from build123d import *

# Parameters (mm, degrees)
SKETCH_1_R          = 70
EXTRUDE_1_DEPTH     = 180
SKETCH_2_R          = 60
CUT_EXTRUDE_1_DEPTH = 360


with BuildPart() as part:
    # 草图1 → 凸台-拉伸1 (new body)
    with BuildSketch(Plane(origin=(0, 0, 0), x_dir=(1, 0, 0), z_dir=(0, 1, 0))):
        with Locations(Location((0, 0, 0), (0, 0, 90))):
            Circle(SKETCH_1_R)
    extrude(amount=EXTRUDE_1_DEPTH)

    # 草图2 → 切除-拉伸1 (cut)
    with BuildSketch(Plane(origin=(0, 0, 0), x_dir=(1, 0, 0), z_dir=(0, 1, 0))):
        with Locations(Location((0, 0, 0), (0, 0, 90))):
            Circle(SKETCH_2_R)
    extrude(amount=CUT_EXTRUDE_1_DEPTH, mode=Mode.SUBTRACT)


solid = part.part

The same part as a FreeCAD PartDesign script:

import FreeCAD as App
import Part
import Sketcher

V = App.Vector
Q = App.Units.Quantity

doc = App.newDocument("Part")
body = doc.addObject("PartDesign::Body", "Body")

# Sketch on XZ plane
sketch1 = doc.addObject("Sketcher::SketchObject", "Sketch")
body.addObject(sketch1)
sketch1.AttachmentSupport = (doc.XZ_Plane, [""])
sketch1.MapMode = "FlatFace"
sketch1.addGeometry(Part.Circle(V(0, 0, 0), V(0, 0, 1), 70), False)
sketch1.addConstraint([
    Sketcher.Constraint("Coincident", 0, 3, -1, 1),
    Sketcher.Constraint("Diameter", 0, Q("140 mm")),
])
pad1 = doc.addObject("PartDesign::Pad", "Pad")
body.addObject(pad1)
pad1.Profile = sketch1
pad1.Length = 180
pad1.Reversed = True

# Sketch on XZ plane
sketch2 = doc.addObject("Sketcher::SketchObject", "Sketch001")
body.addObject(sketch2)
sketch2.AttachmentSupport = (doc.XZ_Plane, [""])
sketch2.MapMode = "FlatFace"
sketch2.addGeometry(Part.Circle(V(0, 0, 0), V(0, 0, 1), 60), False)
sketch2.addConstraint([
    Sketcher.Constraint("Coincident", 0, 3, -1, 1),
    Sketcher.Constraint("Diameter", 0, Q("120 mm")),
])
pocket1 = doc.addObject("PartDesign::Pocket", "Pocket")
body.addObject(pocket1)
pocket1.Profile = sketch2
pocket1.Length = 360

doc.recompute()
